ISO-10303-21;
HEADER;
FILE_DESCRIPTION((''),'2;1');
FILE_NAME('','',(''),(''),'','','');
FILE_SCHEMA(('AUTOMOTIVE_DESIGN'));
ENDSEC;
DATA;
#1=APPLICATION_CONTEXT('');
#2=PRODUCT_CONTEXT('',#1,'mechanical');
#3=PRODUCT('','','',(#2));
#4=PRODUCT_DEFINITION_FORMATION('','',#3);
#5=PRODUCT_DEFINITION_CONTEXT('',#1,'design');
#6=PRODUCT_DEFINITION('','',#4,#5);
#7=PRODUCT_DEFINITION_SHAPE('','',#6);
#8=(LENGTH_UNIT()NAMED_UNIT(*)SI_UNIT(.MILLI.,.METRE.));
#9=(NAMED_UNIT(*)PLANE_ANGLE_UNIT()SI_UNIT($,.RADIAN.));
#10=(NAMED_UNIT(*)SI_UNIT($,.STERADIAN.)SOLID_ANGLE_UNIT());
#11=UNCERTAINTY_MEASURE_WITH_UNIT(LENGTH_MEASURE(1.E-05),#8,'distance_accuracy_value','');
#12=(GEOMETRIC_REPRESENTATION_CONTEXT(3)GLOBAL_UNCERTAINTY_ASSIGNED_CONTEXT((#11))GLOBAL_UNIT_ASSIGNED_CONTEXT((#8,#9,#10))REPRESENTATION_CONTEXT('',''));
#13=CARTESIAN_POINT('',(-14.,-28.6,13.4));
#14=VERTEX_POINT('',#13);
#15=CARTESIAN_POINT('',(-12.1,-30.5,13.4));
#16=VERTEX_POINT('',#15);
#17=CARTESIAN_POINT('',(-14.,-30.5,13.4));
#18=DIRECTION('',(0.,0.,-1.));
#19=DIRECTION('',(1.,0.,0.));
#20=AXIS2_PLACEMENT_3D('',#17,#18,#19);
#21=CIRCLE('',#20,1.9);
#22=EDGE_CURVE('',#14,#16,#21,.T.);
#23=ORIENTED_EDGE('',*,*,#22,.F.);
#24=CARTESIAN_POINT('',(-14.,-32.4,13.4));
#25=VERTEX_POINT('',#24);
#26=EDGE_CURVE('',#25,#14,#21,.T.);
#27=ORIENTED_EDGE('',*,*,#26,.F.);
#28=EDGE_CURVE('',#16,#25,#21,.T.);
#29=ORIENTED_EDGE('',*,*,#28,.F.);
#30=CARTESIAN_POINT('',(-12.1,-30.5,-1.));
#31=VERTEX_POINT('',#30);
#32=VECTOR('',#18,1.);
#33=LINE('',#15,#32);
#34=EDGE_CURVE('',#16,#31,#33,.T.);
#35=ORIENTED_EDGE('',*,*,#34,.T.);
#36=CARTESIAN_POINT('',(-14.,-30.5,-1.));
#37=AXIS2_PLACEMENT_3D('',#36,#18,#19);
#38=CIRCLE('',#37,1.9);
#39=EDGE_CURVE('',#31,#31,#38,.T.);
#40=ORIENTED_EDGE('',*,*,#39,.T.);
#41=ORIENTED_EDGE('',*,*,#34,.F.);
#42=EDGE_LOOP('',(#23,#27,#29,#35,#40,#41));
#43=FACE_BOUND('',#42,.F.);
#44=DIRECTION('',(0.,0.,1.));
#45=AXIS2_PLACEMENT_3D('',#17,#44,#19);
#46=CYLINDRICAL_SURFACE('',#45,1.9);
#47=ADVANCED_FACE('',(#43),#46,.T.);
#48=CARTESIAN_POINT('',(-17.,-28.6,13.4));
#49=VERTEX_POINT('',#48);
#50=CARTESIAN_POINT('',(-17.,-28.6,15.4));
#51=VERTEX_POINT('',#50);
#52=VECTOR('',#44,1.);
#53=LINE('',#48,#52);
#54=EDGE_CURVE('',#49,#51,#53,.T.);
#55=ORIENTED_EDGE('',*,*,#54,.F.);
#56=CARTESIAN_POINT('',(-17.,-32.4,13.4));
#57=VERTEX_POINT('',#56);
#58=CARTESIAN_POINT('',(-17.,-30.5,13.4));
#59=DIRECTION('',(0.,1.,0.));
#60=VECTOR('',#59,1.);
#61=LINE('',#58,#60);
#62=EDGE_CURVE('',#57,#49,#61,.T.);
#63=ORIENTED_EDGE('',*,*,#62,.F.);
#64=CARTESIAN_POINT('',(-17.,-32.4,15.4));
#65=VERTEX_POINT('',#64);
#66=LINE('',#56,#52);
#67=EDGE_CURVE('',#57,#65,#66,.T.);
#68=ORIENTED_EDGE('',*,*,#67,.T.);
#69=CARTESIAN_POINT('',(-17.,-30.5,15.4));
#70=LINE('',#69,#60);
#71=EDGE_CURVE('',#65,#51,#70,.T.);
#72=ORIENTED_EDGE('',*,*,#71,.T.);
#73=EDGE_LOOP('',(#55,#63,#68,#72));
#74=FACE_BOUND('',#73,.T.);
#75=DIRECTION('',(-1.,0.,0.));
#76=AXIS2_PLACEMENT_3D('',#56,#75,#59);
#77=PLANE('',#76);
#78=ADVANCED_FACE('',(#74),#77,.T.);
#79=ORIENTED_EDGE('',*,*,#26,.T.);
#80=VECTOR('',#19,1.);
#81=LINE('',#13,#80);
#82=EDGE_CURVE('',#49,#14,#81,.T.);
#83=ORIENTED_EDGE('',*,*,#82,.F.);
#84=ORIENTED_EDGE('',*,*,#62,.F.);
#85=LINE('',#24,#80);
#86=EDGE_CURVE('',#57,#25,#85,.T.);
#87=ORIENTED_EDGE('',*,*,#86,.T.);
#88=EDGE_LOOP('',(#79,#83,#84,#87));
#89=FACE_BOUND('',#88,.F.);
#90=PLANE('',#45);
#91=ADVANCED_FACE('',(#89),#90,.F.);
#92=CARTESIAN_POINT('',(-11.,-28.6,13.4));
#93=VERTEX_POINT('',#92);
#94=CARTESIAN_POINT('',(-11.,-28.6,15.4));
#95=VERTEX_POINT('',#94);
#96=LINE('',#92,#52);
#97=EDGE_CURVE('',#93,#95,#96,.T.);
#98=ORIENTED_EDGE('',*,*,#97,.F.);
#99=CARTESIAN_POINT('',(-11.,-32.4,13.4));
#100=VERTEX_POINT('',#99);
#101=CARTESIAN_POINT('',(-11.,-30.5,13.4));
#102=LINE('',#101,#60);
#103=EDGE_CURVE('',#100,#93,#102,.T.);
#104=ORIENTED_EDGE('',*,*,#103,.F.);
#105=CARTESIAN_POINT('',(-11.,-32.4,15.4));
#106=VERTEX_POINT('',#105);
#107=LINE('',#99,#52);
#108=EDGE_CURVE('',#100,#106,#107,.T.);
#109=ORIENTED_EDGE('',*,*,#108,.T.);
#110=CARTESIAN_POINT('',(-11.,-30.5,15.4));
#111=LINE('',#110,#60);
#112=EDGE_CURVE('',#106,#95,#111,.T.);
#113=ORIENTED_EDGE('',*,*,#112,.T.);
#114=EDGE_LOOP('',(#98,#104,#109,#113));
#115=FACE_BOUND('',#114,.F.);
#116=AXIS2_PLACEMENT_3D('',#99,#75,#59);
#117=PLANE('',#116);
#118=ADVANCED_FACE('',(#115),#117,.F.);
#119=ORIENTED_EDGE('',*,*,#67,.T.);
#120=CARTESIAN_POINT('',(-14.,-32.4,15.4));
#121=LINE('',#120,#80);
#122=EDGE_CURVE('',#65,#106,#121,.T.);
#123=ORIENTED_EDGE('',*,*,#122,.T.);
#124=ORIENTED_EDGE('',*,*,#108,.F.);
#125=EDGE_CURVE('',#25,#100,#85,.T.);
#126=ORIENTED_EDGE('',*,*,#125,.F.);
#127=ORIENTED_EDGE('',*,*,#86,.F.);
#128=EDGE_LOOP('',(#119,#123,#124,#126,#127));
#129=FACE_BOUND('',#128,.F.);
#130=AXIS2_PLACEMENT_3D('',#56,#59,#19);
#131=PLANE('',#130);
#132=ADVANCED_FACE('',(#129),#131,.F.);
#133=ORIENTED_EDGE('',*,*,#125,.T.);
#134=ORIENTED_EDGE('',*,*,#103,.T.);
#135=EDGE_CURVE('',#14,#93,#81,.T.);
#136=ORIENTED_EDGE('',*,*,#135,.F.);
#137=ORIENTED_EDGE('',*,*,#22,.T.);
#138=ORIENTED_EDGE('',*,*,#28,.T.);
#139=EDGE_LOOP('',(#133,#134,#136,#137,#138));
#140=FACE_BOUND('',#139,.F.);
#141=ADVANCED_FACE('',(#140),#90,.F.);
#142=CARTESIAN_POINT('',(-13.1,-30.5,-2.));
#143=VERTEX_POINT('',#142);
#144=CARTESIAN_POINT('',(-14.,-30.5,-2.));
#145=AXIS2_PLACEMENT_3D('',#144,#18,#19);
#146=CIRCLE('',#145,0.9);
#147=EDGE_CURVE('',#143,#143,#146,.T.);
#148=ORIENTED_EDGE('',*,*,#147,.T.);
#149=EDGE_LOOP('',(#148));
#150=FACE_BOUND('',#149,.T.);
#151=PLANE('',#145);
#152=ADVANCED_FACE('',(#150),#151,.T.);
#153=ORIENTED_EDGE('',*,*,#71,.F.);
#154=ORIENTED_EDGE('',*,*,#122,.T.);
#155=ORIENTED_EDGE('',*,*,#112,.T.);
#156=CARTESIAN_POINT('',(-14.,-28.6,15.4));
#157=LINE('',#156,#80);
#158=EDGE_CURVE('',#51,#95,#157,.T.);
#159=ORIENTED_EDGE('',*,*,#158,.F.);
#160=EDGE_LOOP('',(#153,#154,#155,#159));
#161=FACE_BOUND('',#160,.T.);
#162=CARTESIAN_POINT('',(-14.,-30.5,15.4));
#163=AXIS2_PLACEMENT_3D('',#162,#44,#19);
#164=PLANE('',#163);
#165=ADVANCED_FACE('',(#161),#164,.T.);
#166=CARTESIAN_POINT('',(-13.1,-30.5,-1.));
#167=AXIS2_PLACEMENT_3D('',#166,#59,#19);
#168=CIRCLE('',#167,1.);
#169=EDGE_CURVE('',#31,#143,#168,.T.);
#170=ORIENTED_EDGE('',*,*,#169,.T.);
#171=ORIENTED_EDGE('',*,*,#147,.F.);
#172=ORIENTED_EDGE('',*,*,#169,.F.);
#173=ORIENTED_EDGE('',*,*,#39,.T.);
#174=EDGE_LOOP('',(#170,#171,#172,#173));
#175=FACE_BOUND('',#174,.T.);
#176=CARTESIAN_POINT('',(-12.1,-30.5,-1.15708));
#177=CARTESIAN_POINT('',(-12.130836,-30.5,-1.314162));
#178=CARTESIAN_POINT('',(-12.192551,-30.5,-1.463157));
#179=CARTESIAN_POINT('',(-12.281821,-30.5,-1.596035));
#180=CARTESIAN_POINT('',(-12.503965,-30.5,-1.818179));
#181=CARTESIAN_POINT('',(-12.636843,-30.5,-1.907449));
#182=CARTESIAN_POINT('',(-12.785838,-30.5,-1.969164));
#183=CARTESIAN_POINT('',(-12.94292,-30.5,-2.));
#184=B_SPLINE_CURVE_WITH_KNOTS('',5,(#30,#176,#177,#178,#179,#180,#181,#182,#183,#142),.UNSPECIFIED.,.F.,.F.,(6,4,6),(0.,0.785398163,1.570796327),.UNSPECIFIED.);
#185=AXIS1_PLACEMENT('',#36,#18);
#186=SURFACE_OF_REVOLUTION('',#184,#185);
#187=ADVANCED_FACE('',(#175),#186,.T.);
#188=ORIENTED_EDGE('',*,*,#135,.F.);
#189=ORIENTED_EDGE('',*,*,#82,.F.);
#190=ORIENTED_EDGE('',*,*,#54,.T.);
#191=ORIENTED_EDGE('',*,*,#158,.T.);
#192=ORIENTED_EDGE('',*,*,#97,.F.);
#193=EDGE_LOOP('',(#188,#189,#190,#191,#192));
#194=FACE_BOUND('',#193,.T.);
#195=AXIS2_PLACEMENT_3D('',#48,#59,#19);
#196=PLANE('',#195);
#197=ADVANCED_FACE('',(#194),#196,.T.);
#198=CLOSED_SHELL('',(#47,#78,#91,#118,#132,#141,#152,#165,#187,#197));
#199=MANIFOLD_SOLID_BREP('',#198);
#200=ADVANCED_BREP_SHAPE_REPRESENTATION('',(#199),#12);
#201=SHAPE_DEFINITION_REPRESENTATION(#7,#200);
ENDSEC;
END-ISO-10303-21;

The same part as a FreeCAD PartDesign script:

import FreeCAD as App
import Part
import Sketcher


def edges_at(feature, points):
    """Names of the edges that pass closest to the given points."""
    edges = feature.Shape.Edges
    near = lambda p: min(range(len(edges)), key=lambda i: edges[i].distToShape(Part.Vertex(*p))[0])
    return sorted({f"Edge{near(p) + 1}" for p in points})

doc = App.newDocument("Part")
body = doc.addObject("PartDesign::Body", "Body")

sketch1 = body.newObject("Sketcher::SketchObject", "Sketch")
sketch1.AttachmentSupport = (doc.getObject("XY_Plane"), [""])
sketch1.MapMode = "FlatFace"
sketch1.AttachmentOffset = App.Placement(App.Vector(0, 0, 13.4), App.Rotation())
sketch1.addGeometry([
    Part.LineSegment(App.Vector(-17, -28.6, 0), App.Vector(-17, -32.4, 0)),
    Part.LineSegment(App.Vector(-17, -32.4, 0), App.Vector(-11, -32.4, 0)),
    Part.LineSegment(App.Vector(-11, -32.4, 0), App.Vector(-11, -28.6, 0)),
    Part.LineSegment(App.Vector(-11, -28.6, 0), App.Vector(-17, -28.6, 0)),
], False)
sketch1.addConstraint([
    Sketcher.Constraint("Coincident", 0, 2, 1, 1),
    Sketcher.Constraint("Coincident", 1, 2, 2, 1),
    Sketcher.Constraint("Coincident", 2, 2, 3, 1),
    Sketcher.Constraint("Coincident", 3, 2, 0, 1),
    Sketcher.Constraint("Vertical", 0),
    Sketcher.Constraint("Horizontal", 1),
    Sketcher.Constraint("Vertical", 2),
    Sketcher.Constraint("Horizontal", 3),
    Sketcher.Constraint("DistanceX", 1, 1, 1, 2, 6.0),
    Sketcher.Constraint("DistanceY", 0, 2, 0, 1, 3.8),
    Sketcher.Constraint("DistanceX", 0, 2, -1, 1, 17.0),
    Sketcher.Constraint("DistanceY", 0, 2, -1, 1, 32.4),
])
pad1 = body.newObject("PartDesign::Pad", "Pad")
pad1.Profile = sketch1
pad1.Length = 2

sketch2 = body.newObject("Sketcher::SketchObject", "Sketch001")
sketch2.AttachmentSupport = (doc.getObject("XY_Plane"), [""])
sketch2.MapMode = "FlatFace"
sketch2.AttachmentOffset = App.Placement(App.Vector(0, 0, 13.4), App.Rotation())
sketch2.addGeometry(Part.Circle(App.Vector(-14, -30.5, 0), App.Vector(0, 0, 1), 1.9), False)
sketch2.addConstraint([
    Sketcher.Constraint("Diameter", 0, 3.8),
    Sketcher.Constraint("DistanceX", 0, 3, -1, 1, 14.0),
    Sketcher.Constraint("DistanceY", 0, 3, -1, 1, 30.5),
])
pad2 = body.newObject("PartDesign::Pad", "Pad001")
pad2.Profile = sketch2
pad2.Length = 15.4
pad2.Reversed = True
doc.recompute()

fillet = body.newObject("PartDesign::Fillet", "Fillet")
fillet.Base = (pad2, edges_at(pad2, [(-15.9, -30.5, -2)]))
fillet.Radius = 1

doc.recompute()
